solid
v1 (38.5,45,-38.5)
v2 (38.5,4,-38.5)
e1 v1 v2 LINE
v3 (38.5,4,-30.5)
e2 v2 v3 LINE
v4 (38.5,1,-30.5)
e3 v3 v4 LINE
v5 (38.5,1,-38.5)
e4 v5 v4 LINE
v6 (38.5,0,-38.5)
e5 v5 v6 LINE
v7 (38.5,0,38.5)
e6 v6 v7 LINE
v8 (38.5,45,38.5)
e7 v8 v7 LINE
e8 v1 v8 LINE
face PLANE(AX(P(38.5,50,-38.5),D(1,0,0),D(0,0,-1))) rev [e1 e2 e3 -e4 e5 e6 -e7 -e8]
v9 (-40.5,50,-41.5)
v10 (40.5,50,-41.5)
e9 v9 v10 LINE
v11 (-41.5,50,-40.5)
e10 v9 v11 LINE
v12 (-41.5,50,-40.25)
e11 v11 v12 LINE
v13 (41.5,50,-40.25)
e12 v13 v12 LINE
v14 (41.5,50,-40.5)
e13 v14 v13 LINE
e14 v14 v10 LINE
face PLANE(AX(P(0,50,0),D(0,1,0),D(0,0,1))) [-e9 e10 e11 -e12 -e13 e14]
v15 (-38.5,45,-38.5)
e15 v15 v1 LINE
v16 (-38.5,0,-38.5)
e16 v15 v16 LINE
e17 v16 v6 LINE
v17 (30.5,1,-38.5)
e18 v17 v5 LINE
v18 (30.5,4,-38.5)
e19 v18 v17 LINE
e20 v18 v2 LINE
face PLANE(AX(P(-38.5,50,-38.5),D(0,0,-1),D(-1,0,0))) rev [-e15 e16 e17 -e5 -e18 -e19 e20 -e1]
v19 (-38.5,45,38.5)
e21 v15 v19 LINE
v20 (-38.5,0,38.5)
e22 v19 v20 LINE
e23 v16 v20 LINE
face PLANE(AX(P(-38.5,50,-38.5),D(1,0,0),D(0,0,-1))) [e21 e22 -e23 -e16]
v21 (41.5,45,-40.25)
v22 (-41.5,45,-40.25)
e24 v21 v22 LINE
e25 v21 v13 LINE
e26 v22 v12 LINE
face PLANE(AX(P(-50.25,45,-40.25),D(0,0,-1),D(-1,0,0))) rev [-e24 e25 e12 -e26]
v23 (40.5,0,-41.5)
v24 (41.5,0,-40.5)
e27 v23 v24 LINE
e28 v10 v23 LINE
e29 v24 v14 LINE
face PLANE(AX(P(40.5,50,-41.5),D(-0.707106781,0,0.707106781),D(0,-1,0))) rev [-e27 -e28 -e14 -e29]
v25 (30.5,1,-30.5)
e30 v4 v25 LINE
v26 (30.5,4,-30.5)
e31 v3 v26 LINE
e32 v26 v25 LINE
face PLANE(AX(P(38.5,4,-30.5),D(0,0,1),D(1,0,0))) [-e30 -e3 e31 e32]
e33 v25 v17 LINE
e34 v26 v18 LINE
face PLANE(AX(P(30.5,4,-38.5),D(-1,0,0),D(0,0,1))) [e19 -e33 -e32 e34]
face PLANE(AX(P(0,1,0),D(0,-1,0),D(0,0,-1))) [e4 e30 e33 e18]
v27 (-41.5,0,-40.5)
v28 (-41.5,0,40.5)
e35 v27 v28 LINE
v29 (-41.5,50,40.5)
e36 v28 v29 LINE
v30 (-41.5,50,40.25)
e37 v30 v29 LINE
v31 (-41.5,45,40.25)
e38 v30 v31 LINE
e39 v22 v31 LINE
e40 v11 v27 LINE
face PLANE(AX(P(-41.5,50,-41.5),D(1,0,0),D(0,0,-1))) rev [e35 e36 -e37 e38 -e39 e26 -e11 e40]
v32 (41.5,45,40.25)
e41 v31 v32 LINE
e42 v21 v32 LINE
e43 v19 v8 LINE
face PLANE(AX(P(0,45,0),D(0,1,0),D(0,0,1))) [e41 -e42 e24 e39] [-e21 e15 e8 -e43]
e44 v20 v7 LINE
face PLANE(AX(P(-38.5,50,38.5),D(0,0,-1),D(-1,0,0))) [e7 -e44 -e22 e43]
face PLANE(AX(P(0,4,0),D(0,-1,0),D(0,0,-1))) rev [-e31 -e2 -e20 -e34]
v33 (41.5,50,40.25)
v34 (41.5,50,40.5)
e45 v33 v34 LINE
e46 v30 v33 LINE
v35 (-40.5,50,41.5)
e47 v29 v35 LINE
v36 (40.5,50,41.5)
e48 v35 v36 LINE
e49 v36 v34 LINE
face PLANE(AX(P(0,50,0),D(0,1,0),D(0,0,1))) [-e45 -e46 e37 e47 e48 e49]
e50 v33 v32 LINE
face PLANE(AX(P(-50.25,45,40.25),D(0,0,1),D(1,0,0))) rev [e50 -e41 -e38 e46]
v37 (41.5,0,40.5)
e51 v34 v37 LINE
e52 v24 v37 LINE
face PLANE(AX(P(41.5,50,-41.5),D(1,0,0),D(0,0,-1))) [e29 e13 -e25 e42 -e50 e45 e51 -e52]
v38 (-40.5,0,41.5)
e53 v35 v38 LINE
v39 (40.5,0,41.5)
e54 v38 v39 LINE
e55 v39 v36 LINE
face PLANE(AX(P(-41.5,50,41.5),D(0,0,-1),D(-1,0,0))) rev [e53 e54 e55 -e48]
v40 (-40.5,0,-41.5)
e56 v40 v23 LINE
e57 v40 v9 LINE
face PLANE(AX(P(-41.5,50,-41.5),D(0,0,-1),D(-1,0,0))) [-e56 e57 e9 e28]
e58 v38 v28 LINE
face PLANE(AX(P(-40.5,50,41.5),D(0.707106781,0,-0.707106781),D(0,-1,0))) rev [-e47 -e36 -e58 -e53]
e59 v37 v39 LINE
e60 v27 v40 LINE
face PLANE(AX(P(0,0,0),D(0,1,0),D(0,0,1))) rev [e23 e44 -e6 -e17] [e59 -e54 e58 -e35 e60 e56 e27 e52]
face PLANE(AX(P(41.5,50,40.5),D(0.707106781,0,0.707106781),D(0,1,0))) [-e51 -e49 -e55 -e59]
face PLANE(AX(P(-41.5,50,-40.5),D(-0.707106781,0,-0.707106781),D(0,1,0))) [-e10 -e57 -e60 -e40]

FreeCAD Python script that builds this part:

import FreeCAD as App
import Part
import Sketcher

V = App.Vector


def edges_at(feature, points):
    """Names of the edges that pass closest to the given points."""
    edges = feature.Shape.Edges
    near = lambda p: min(range(len(edges)), key=lambda i: edges[i].distToShape(Part.Vertex(*p))[0])
    return sorted({f"Edge{near(p) + 1}" for p in points})

doc = App.newDocument("Part")
body = doc.addObject("PartDesign::Body", "Body")

sketch1 = doc.addObject("Sketcher::SketchObject", "Sketch")
body.addObject(sketch1)
sketch1.AttachmentSupport = (doc.XZ_Plane, [""])
sketch1.MapMode = "FlatFace"
sketch1.addGeometry([
    Part.LineSegment(V(-42, -42, 0), V(-42, 42, 0)),
    Part.LineSegment(V(-42, 42, 0), V(42, 42, 0)),
    Part.LineSegment(V(42, 42, 0), V(42, -42, 0)),
    Part.LineSegment(V(42, -42, 0), V(-42, -42, 0)),
    Part.LineSegment(V(38, 38, 0), V(-38, 38, 0)),
    Part.LineSegment(V(-38, 38, 0), V(-38, -38, 0)),
    Part.LineSegment(V(-38, -38, 0), V(38, -38, 0)),
    Part.LineSegment(V(38, -38, 0), V(38, 38, 0)),
], False)
sketch1.addConstraint([
    Sketcher.Constraint("Coincident", 0, 2, 1, 1),
    Sketcher.Constraint("Coincident", 1, 2, 2, 1),
    Sketcher.Constraint("Coincident", 2, 2, 3, 1),
    Sketcher.Constraint("Coincident", 3, 2, 0, 1),
    Sketcher.Constraint("Coincident", 4, 2, 5, 1),
    Sketcher.Constraint("Coincident", 5, 2, 6, 1),
    Sketcher.Constraint("Coincident", 6, 2, 7, 1),
    Sketcher.Constraint("Coincident", 7, 2, 4, 1),
    Sketcher.Constraint("Vertical", 0),
    Sketcher.Constraint("Horizontal", 1),
    Sketcher.Constraint("Vertical", 2),
    Sketcher.Constraint("Horizontal", 3),
    Sketcher.Constraint("Horizontal", 4),
    Sketcher.Constraint("Vertical", 5),
    Sketcher.Constraint("Horizontal", 6),
    Sketcher.Constraint("Vertical", 7),
    Sketcher.Constraint("Symmetric", 0, 2, 2, 2, -1, 1),
    Sketcher.Constraint("Symmetric", 4, 2, 6, 2, -1, 1),
    Sketcher.Constraint("Equal", 3, 0),
    Sketcher.Constraint("Equal", 6, 5),
    Sketcher.Constraint("DistanceX", 1, 1, 1, 2, 83.0),
    Sketcher.Constraint("DistanceX", 4, 2, 4, 1, 77.0),
])
pad1 = doc.addObject("PartDesign::Pad", "Pad")
body.addObject(pad1)
pad1.Profile = sketch1
pad1.Length = 50
pad1.Reversed = True

sketch2 = doc.addObject("Sketcher::SketchObject", "Sketch001")
body.addObject(sketch2)
sketch2.AttachmentSupport = (doc.XZ_Plane, [""])
sketch2.MapMode = "FlatFace"
sketch2.AttachmentOffset = App.Placement(V(0, 0, -50), App.Rotation())
sketch2.addGeometry([
    Part.LineSegment(V(-50, -40, 0), V(-50, 40, 0)),
    Part.LineSegment(V(-50, 40, 0), V(50, 40, 0)),
    Part.LineSegment(V(50, 40, 0), V(50, -40, 0)),
    Part.LineSegment(V(50, -40, 0), V(-50, -40, 0)),
], False)
sketch2.addConstraint([
    Sketcher.Constraint("Coincident", 0, 2, 1, 1),
    Sketcher.Constraint("Coincident", 1, 2, 2, 1),
    Sketcher.Constraint("Coincident", 2, 2, 3, 1),
    Sketcher.Constraint("Coincident", 3, 2, 0, 1),
    Sketcher.Constraint("Vertical", 0),
    Sketcher.Constraint("Horizontal", 1),
    Sketcher.Constraint("Vertical", 2),
    Sketcher.Constraint("Horizontal", 3),
    Sketcher.Constraint("Symmetric", 0, 2, 2, 2, -1, 1),
    Sketcher.Constraint("DistanceX", 1, 1, 1, 2, 100.5),
    Sketcher.Constraint("DistanceY", 0, 1, 0, 2, 80.5),
])
pocket1 = doc.addObject("PartDesign::Pocket", "Pocket")
body.addObject(pocket1)
pocket1.Profile = sketch2
pocket1.Length = 5
pocket1.Reversed = True
doc.recompute()

chamfer = doc.addObject("PartDesign::Chamfer", "Chamfer")
body.addObject(chamfer)
chamfer.Base = (pocket1, edges_at(pocket1, [
    (-41.5, 25, -41.5),
    (41.5, 25, -41.5),
    (41.5, 25, 41.5),
    (-41.5, 25, 41.5),
]))
chamfer.Size = 1

sketch3 = doc.addObject("Sketcher::SketchObject", "Sketch002")
body.addObject(sketch3)
sketch3.AttachmentSupport = (doc.XZ_Plane, [""])
sketch3.MapMode = "FlatFace"
sketch3.AttachmentOffset = App.Placement(V(0, 0, -1), App.Rotation())
sketch3.addGeometry([
    Part.LineSegment(V(38, -38, 0), V(38, -30, 0)),
    Part.LineSegment(V(38, -30, 0), V(30, -30, 0)),
    Part.LineSegment(V(30, -30, 0), V(30, -38, 0)),
    Part.LineSegment(V(30, -38, 0), V(38, -38, 0)),
], False)
sketch3.addConstraint([
    Sketcher.Constraint("Coincident", 0, 2, 1, 1),
    Sketcher.Constraint("Coincident", 1, 2, 2, 1),
    Sketcher.Constraint("Coincident", 2, 2, 3, 1),
    Sketcher.Constraint("Coincident", 3, 2, 0, 1),
    Sketcher.Constraint("Vertical", 0),
    Sketcher.Constraint("Horizontal", 1),
    Sketcher.Constraint("Vertical", 2),
    Sketcher.Constraint("Horizontal", 3),
    Sketcher.Constraint("Equal", 3, 0),
    Sketcher.Constraint("DistanceX", 1, 2, 1, 1, 8.0),
    Sketcher.Constraint("DistanceX", -1, 1, 0, 2, 38.5),
    Sketcher.Constraint("DistanceY", 0, 2, -1, 1, 30.5),
])
pad2 = doc.addObject("PartDesign::Pad", "Pad001")
body.addObject(pad2)
pad2.Profile = sketch3
pad2.Length = 3
pad2.Reversed = True

doc.recompute()
